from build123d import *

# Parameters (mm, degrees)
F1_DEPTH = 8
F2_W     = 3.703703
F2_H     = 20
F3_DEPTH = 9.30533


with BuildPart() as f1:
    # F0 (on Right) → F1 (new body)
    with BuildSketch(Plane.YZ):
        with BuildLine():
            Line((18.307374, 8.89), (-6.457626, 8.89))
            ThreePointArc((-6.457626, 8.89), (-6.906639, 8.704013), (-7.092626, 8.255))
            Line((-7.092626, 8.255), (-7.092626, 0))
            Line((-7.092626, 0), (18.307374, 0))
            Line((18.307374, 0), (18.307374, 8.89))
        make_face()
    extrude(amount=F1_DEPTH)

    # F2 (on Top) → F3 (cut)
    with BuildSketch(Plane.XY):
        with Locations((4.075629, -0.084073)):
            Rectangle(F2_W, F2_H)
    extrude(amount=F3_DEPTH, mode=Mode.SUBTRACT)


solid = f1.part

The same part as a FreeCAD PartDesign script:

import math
import FreeCAD as App
import Part
import Sketcher
Q = App.Units.Quantity


def add_polygon(sketch, points):
    """Adds a closed chain of lines whose ends are joined by coincident constraints."""
    first, n = sketch.GeometryCount, len(points)
    for a, b in zip(points, points[1:] + points[:1]):
        sketch.addGeometry(Part.LineSegment(App.Vector(*a, 0), App.Vector(*b, 0)), False)
    for i in range(n):
        sketch.addConstraint(Sketcher.Constraint("Coincident", first + i, 2, first + (i + 1) % n, 1))

doc = App.newDocument("Part")
body = doc.addObject("PartDesign::Body", "Body")

# Sketch on YZ plane
sketch1 = body.newObject("Sketcher::SketchObject", "Sketch")
sketch1.AttachmentSupport = (doc.getObject("YZ_Plane"), [""])
sketch1.MapMode = "FlatFace"
sketch1.addGeometry(Part.LineSegment(App.Vector(18.3, 8.9, 0), App.Vector(-6.5, 8.9, 0)), False)
sketch1.addGeometry(Part.ArcOfCircle(Part.Circle(App.Vector(-6.5, 8.3, 0), App.Vector(0, 0, 1), 0.6), math.radians(90), math.radians(180)), False)
sketch1.addGeometry(Part.LineSegment(App.Vector(-7.1, 8.3, 0), App.Vector(-7.1, 0, 0)), False)
sketch1.addGeometry(Part.LineSegment(App.Vector(-7.1, 0, 0), App.Vector(18.3, 0, 0)), False)
sketch1.addGeometry(Part.LineSegment(App.Vector(18.3, 0, 0), App.Vector(18.3, 8.9, 0)), False)
sketch1.addConstraint(Sketcher.Constraint("Tangent", 0, 2, 1, 1))
sketch1.addConstraint(Sketcher.Constraint("Tangent", 1, 2, 2, 1))
sketch1.addConstraint(Sketcher.Constraint("Coincident", 2, 2, 3, 1))
sketch1.addConstraint(Sketcher.Constraint("Coincident", 3, 2, 4, 1))
sketch1.addConstraint(Sketcher.Constraint("Coincident", 4, 2, 0, 1))
sketch1.addConstraint(Sketcher.Constraint("Horizontal", 0))
sketch1.addConstraint(Sketcher.Constraint("Vertical", 2))
sketch1.addConstraint(Sketcher.Constraint("Horizontal", 3))
sketch1.addConstraint(Sketcher.Constraint("Vertical", 4))
sketch1.addConstraint(Sketcher.Constraint("PointOnObject", 2, 2, -1))
sketch1.addConstraint(Sketcher.Constraint("DistanceX", 3, 1, 3, 2, Q("1 in")))
sketch1.addConstraint(Sketcher.Constraint("Radius", 1, Q("0.025 in")))
sketch1.addConstraint(Sketcher.Constraint("DistanceY", 4, 1, 4, 2, Q("0.35 in")))
sketch1.addConstraint(Sketcher.Constraint("DistanceX", 1, 3, -1, 1, Q("6.457627 mm")))
pad1 = body.newObject("PartDesign::Pad", "Pad")
pad1.Profile = sketch1
pad1.Length = 8

# Sketch on XY plane
sketch2 = body.newObject("Sketcher::SketchObject", "Sketch001")
sketch2.AttachmentSupport = (doc.getObject("XY_Plane"), [""])
sketch2.MapMode = "FlatFace"
add_polygon(sketch2, [(2.2, 9.9), (2.2, -10.1), (5.9, -10.1), (5.9, 9.9)])  # lines 0-3
sketch2.addConstraint(Sketcher.Constraint("Vertical", 0))
sketch2.addConstraint(Sketcher.Constraint("Horizontal", 1))
sketch2.addConstraint(Sketcher.Constraint("Vertical", 2))
sketch2.addConstraint(Sketcher.Constraint("Horizontal", 3))
sketch2.addConstraint(Sketcher.Constraint("DistanceY", 0, 2, 0, 1, Q("20 mm")))
sketch2.addConstraint(Sketcher.Constraint("DistanceX", 1, 1, 1, 2, Q("3.703703 mm")))
sketch2.addConstraint(Sketcher.Constraint("DistanceX", -1, 1, 1, 2, Q("5.92748 mm")))
sketch2.addConstraint(Sketcher.Constraint("DistanceY", 0, 2, -1, 1, Q("10.084073 mm")))
pocket1 = body.newObject("PartDesign::Pocket", "Pocket")
pocket1.Profile = sketch2
pocket1.Length = 9.30533
pocket1.Reversed = True

doc.recompute()
